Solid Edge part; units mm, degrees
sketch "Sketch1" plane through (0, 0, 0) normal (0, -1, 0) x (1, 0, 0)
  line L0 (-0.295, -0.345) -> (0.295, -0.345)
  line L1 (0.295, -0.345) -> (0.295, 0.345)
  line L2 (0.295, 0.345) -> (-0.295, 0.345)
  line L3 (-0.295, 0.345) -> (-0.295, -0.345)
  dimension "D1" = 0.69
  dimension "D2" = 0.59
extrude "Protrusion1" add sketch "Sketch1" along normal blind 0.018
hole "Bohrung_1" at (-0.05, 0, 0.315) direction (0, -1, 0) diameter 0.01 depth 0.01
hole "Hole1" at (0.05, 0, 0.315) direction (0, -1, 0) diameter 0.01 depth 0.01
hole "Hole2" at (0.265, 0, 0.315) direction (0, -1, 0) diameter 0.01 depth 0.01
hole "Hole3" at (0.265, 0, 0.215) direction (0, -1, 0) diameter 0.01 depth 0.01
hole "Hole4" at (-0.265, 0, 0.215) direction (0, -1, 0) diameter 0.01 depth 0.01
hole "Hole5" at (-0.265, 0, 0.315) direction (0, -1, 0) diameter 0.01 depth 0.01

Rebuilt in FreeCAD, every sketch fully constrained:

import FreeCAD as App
import Part
import Sketcher
from FreeCAD import Vector
Q = App.Units.Quantity

doc = App.newDocument("Part")
body = doc.addObject("PartDesign::Body", "Body")

sketch1 = body.newObject("Sketcher::SketchObject", "Sketch")
sketch1.AttachmentSupport = (doc.getObject("XZ_Plane"), [""])
sketch1.MapMode = "FlatFace"
sketch1.addGeometry(Part.LineSegment(Vector(-0.3, 0.3, 0), Vector(-0.3, -0.3, 0)), False)
sketch1.addGeometry(Part.LineSegment(Vector(-0.3, -0.3, 0), Vector(0.3, -0.3, 0)), False)
sketch1.addGeometry(Part.LineSegment(Vector(0.3, -0.3, 0), Vector(0.3, 0.3, 0)), False)
sketch1.addGeometry(Part.LineSegment(Vector(0.3, 0.3, 0), Vector(-0.3, 0.3, 0)), False)
sketch1.addConstraint(Sketcher.Constraint("Coincident", 0, 2, 1, 1))
sketch1.addConstraint(Sketcher.Constraint("Coincident", 1, 2, 2, 1))
sketch1.addConstraint(Sketcher.Constraint("Coincident", 2, 2, 3, 1))
sketch1.addConstraint(Sketcher.Constraint("Coincident", 3, 2, 0, 1))
sketch1.addConstraint(Sketcher.Constraint("Vertical", 0))
sketch1.addConstraint(Sketcher.Constraint("Horizontal", 1))
sketch1.addConstraint(Sketcher.Constraint("Vertical", 2))
sketch1.addConstraint(Sketcher.Constraint("Horizontal", 3))
sketch1.addConstraint(Sketcher.Constraint("Symmetric", 0, 2, 2, 2, -1, 1))
sketch1.addConstraint(Sketcher.Constraint("DistanceX", 0, 2, -1, 1, Q("0.295 mm")))
sketch1.addConstraint(Sketcher.Constraint("DistanceY", 0, 2, 0, 1, Q("0.69 mm")))
pad1 = body.newObject("PartDesign::Pad", "Pad")
pad1.Profile = sketch1
pad1.Length = 0.018

sketch2 = body.newObject("Sketcher::SketchObject", "Sketch001")
sketch2.AttachmentSupport = (doc.getObject("XZ_Plane"), [""])
sketch2.MapMode = "FlatFace"
sketch2.addGeometry(Part.Circle(Vector(-0.05, 0.315, 0), Vector(0, 0, 1), 0.005), False)
sketch2.addConstraint(Sketcher.Constraint("Diameter", 0, Q("0.01 mm")))
sketch2.addConstraint(Sketcher.Constraint("DistanceX", 0, 3, -1, 1, Q("0.05 mm")))
sketch2.addConstraint(Sketcher.Constraint("DistanceY", -1, 1, 0, 3, Q("0.315 mm")))
doc.recompute()
hole = body.newObject("PartDesign::Hole", "Hole")
hole.Profile = sketch2
hole.ThreadType = "None"
hole.Diameter = 0.01
hole.DepthType = "Dimension"
hole.Depth = 0.01
hole.DrillPoint = "Flat"
hole.Reversed = True

sketch3 = body.newObject("Sketcher::SketchObject", "Sketch002")
sketch3.AttachmentSupport = (doc.getObject("XZ_Plane"), [""])
sketch3.MapMode = "FlatFace"
sketch3.addGeometry(Part.Circle(Vector(0.05, 0.315, 0), Vector(0, 0, 1), 0.005), False)
sketch3.addConstraint(Sketcher.Constraint("Diameter", 0, Q("0.01 mm")))
sketch3.addConstraint(Sketcher.Constraint("DistanceX", -1, 1, 0, 3, Q("0.05 mm")))
sketch3.addConstraint(Sketcher.Constraint("DistanceY", -1, 1, 0, 3, Q("0.315 mm")))
doc.recompute()
hole2 = body.newObject("PartDesign::Hole", "Hole001")
hole2.Profile = sketch3
hole2.ThreadType = "None"
hole2.Diameter = 0.01
hole2.DepthType = "Dimension"
hole2.Depth = 0.01
hole2.DrillPoint = "Flat"
hole2.Reversed = True

sketch4 = body.newObject("Sketcher::SketchObject", "Sketch003")
sketch4.AttachmentSupport = (doc.getObject("XZ_Plane"), [""])
sketch4.MapMode = "FlatFace"
sketch4.addGeometry(Part.Circle(Vector(0.265, 0.315, 0), Vector(0, 0, 1), 0.005), False)
sketch4.addConstraint(Sketcher.Constraint("Diameter", 0, Q("0.01 mm")))
sketch4.addConstraint(Sketcher.Constraint("DistanceX", -1, 1, 0, 3, Q("0.265 mm")))
sketch4.addConstraint(Sketcher.Constraint("DistanceY", -1, 1, 0, 3, Q("0.315 mm")))
doc.recompute()
hole3 = body.newObject("PartDesign::Hole", "Hole002")
hole3.Profile = sketch4
hole3.ThreadType = "None"
hole3.Diameter = 0.01
hole3.DepthType = "Dimension"
hole3.Depth = 0.01
hole3.DrillPoint = "Flat"
hole3.Reversed = True

sketch5 = body.newObject("Sketcher::SketchObject", "Sketch004")
sketch5.AttachmentSupport = (doc.getObject("XZ_Plane"), [""])
sketch5.MapMode = "FlatFace"
sketch5.addGeometry(Part.Circle(Vector(0.265, 0.215, 0), Vector(0, 0, 1), 0.005), False)
sketch5.addConstraint(Sketcher.Constraint("Diameter", 0, Q("0.01 mm")))
sketch5.addConstraint(Sketcher.Constraint("DistanceX", -1, 1, 0, 3, Q("0.265 mm")))
sketch5.addConstraint(Sketcher.Constraint("DistanceY", -1, 1, 0, 3, Q("0.215 mm")))
doc.recompute()
hole4 = body.newObject("PartDesign::Hole", "Hole003")
hole4.Profile = sketch5
hole4.ThreadType = "None"
hole4.Diameter = 0.01
hole4.DepthType = "Dimension"
hole4.Depth = 0.01
hole4.DrillPoint = "Flat"
hole4.Reversed = True

sketch6 = body.newObject("Sketcher::SketchObject", "Sketch005")
sketch6.AttachmentSupport = (doc.getObject("XZ_Plane"), [""])
sketch6.MapMode = "FlatFace"
sketch6.addGeometry(Part.Circle(Vector(-0.265, 0.215, 0), Vector(0, 0, 1), 0.005), False)
sketch6.addConstraint(Sketcher.Constraint("Diameter", 0, Q("0.01 mm")))
sketch6.addConstraint(Sketcher.Constraint("DistanceX", 0, 3, -1, 1, Q("0.265 mm")))
sketch6.addConstraint(Sketcher.Constraint("DistanceY", -1, 1, 0, 3, Q("0.215 mm")))
doc.recompute()
hole5 = body.newObject("PartDesign::Hole", "Hole004")
hole5.Profile = sketch6
hole5.ThreadType = "None"
hole5.Diameter = 0.01
hole5.DepthType = "Dimension"
hole5.Depth = 0.01
hole5.DrillPoint = "Flat"
hole5.Reversed = True

sketch7 = body.newObject("Sketcher::SketchObject", "Sketch006")
sketch7.AttachmentSupport = (doc.getObject("XZ_Plane"), [""])
sketch7.MapMode = "FlatFace"
sketch7.addGeometry(Part.Circle(Vector(-0.265, 0.315, 0), Vector(0, 0, 1), 0.005), False)
sketch7.addConstraint(Sketcher.Constraint("Diameter", 0, Q("0.01 mm")))
sketch7.addConstraint(Sketcher.Constraint("DistanceX", 0, 3, -1, 1, Q("0.265 mm")))
sketch7.addConstraint(Sketcher.Constraint("DistanceY", -1, 1, 0, 3, Q("0.315 mm")))
doc.recompute()
hole6 = body.newObject("PartDesign::Hole", "Hole005")
hole6.Profile = sketch7
hole6.ThreadType = "None"
hole6.Diameter = 0.01
hole6.DepthType = "Dimension"
hole6.Depth = 0.01
hole6.DrillPoint = "Flat"
hole6.Reversed = True

doc.recompute()
